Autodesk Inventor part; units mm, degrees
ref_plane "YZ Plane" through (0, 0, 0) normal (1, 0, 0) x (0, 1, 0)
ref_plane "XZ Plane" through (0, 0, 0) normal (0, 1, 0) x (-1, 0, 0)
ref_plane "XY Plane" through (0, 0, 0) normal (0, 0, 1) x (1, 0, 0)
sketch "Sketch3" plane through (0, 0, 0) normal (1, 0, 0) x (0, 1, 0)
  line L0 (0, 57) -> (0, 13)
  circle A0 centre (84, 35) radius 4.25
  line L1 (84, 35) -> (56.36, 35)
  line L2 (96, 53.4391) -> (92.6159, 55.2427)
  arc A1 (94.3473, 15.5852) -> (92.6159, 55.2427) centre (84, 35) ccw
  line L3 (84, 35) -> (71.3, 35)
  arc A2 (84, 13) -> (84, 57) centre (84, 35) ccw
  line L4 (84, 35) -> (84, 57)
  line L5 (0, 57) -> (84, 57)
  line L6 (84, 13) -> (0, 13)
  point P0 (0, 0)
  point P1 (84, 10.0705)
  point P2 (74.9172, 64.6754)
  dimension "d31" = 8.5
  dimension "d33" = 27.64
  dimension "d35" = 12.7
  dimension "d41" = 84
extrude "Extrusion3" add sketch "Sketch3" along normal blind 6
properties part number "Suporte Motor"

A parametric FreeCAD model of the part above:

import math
import FreeCAD as App
import Part
import Sketcher

V = App.Vector
Q = App.Units.Quantity

doc = App.newDocument("Part")
body = doc.addObject("PartDesign::Body", "Body")

sketch1 = body.newObject("Sketcher::SketchObject", "Sketch")
sketch1.AttachmentSupport = (doc.getObject("YZ_Plane"), [""])
sketch1.MapMode = "FlatFace"
sketch1.addGeometry([
    Part.LineSegment(V(84, 57, 0), V(0, 57, 0)),
    Part.LineSegment(V(0, 57, 0), V(0, 13, 0)),
    Part.LineSegment(V(0, 13, 0), V(84, 13, 0)),
    Part.ArcOfCircle(Part.Circle(V(84, 35, 0), V(0, 0, 1), 22), math.radians(-90), math.radians(-62)),
    Part.ArcOfCircle(Part.Circle(V(84, 35, 0), V(0, 0, 1), 22), math.radians(-62), math.radians(67)),
    Part.ArcOfCircle(Part.Circle(V(84, 35, 0), V(0, 0, 1), 22), math.radians(67), math.radians(90)),
    Part.Circle(V(84, 35, 0), V(0, 0, 1), 4.2),
], False)
sketch1.addConstraint([
    Sketcher.Constraint("Coincident", 0, 2, 1, 1),
    Sketcher.Constraint("Coincident", 1, 2, 2, 1),
    Sketcher.Constraint("Tangent", 2, 2, 3, 1),
    Sketcher.Constraint("Tangent", 3, 2, 4, 1),
    Sketcher.Constraint("Tangent", 4, 2, 5, 1),
    Sketcher.Constraint("Tangent", 5, 2, 0, 1),
    Sketcher.Constraint("Horizontal", 0),
    Sketcher.Constraint("Vertical", 1),
    Sketcher.Constraint("Horizontal", 2),
    Sketcher.Constraint("Coincident", 5, 3, 3, 3),
    Sketcher.Constraint("Coincident", 6, 3, 3, 3),
    Sketcher.Constraint("PointOnObject", 0, 2, -2),
    Sketcher.Constraint("Diameter", 6, Q("8.5 mm")),
    Sketcher.Constraint("DistanceX", 0, 2, 0, 1, Q("84 mm")),
    Sketcher.Constraint("Radius", 3, Q("22 mm")),
    Sketcher.Constraint("DistanceY", -1, 1, 3, 3, Q("35 mm")),
    Sketcher.Constraint("DistanceX", -1, 1, 4, 2, Q("92.616 mm")),
    Sketcher.Constraint("DistanceX", -1, 1, 3, 2, Q("94.3473 mm")),
])
pad1 = body.newObject("PartDesign::Pad", "Pad")
pad1.Profile = sketch1
pad1.Length = 6

doc.recompute()
